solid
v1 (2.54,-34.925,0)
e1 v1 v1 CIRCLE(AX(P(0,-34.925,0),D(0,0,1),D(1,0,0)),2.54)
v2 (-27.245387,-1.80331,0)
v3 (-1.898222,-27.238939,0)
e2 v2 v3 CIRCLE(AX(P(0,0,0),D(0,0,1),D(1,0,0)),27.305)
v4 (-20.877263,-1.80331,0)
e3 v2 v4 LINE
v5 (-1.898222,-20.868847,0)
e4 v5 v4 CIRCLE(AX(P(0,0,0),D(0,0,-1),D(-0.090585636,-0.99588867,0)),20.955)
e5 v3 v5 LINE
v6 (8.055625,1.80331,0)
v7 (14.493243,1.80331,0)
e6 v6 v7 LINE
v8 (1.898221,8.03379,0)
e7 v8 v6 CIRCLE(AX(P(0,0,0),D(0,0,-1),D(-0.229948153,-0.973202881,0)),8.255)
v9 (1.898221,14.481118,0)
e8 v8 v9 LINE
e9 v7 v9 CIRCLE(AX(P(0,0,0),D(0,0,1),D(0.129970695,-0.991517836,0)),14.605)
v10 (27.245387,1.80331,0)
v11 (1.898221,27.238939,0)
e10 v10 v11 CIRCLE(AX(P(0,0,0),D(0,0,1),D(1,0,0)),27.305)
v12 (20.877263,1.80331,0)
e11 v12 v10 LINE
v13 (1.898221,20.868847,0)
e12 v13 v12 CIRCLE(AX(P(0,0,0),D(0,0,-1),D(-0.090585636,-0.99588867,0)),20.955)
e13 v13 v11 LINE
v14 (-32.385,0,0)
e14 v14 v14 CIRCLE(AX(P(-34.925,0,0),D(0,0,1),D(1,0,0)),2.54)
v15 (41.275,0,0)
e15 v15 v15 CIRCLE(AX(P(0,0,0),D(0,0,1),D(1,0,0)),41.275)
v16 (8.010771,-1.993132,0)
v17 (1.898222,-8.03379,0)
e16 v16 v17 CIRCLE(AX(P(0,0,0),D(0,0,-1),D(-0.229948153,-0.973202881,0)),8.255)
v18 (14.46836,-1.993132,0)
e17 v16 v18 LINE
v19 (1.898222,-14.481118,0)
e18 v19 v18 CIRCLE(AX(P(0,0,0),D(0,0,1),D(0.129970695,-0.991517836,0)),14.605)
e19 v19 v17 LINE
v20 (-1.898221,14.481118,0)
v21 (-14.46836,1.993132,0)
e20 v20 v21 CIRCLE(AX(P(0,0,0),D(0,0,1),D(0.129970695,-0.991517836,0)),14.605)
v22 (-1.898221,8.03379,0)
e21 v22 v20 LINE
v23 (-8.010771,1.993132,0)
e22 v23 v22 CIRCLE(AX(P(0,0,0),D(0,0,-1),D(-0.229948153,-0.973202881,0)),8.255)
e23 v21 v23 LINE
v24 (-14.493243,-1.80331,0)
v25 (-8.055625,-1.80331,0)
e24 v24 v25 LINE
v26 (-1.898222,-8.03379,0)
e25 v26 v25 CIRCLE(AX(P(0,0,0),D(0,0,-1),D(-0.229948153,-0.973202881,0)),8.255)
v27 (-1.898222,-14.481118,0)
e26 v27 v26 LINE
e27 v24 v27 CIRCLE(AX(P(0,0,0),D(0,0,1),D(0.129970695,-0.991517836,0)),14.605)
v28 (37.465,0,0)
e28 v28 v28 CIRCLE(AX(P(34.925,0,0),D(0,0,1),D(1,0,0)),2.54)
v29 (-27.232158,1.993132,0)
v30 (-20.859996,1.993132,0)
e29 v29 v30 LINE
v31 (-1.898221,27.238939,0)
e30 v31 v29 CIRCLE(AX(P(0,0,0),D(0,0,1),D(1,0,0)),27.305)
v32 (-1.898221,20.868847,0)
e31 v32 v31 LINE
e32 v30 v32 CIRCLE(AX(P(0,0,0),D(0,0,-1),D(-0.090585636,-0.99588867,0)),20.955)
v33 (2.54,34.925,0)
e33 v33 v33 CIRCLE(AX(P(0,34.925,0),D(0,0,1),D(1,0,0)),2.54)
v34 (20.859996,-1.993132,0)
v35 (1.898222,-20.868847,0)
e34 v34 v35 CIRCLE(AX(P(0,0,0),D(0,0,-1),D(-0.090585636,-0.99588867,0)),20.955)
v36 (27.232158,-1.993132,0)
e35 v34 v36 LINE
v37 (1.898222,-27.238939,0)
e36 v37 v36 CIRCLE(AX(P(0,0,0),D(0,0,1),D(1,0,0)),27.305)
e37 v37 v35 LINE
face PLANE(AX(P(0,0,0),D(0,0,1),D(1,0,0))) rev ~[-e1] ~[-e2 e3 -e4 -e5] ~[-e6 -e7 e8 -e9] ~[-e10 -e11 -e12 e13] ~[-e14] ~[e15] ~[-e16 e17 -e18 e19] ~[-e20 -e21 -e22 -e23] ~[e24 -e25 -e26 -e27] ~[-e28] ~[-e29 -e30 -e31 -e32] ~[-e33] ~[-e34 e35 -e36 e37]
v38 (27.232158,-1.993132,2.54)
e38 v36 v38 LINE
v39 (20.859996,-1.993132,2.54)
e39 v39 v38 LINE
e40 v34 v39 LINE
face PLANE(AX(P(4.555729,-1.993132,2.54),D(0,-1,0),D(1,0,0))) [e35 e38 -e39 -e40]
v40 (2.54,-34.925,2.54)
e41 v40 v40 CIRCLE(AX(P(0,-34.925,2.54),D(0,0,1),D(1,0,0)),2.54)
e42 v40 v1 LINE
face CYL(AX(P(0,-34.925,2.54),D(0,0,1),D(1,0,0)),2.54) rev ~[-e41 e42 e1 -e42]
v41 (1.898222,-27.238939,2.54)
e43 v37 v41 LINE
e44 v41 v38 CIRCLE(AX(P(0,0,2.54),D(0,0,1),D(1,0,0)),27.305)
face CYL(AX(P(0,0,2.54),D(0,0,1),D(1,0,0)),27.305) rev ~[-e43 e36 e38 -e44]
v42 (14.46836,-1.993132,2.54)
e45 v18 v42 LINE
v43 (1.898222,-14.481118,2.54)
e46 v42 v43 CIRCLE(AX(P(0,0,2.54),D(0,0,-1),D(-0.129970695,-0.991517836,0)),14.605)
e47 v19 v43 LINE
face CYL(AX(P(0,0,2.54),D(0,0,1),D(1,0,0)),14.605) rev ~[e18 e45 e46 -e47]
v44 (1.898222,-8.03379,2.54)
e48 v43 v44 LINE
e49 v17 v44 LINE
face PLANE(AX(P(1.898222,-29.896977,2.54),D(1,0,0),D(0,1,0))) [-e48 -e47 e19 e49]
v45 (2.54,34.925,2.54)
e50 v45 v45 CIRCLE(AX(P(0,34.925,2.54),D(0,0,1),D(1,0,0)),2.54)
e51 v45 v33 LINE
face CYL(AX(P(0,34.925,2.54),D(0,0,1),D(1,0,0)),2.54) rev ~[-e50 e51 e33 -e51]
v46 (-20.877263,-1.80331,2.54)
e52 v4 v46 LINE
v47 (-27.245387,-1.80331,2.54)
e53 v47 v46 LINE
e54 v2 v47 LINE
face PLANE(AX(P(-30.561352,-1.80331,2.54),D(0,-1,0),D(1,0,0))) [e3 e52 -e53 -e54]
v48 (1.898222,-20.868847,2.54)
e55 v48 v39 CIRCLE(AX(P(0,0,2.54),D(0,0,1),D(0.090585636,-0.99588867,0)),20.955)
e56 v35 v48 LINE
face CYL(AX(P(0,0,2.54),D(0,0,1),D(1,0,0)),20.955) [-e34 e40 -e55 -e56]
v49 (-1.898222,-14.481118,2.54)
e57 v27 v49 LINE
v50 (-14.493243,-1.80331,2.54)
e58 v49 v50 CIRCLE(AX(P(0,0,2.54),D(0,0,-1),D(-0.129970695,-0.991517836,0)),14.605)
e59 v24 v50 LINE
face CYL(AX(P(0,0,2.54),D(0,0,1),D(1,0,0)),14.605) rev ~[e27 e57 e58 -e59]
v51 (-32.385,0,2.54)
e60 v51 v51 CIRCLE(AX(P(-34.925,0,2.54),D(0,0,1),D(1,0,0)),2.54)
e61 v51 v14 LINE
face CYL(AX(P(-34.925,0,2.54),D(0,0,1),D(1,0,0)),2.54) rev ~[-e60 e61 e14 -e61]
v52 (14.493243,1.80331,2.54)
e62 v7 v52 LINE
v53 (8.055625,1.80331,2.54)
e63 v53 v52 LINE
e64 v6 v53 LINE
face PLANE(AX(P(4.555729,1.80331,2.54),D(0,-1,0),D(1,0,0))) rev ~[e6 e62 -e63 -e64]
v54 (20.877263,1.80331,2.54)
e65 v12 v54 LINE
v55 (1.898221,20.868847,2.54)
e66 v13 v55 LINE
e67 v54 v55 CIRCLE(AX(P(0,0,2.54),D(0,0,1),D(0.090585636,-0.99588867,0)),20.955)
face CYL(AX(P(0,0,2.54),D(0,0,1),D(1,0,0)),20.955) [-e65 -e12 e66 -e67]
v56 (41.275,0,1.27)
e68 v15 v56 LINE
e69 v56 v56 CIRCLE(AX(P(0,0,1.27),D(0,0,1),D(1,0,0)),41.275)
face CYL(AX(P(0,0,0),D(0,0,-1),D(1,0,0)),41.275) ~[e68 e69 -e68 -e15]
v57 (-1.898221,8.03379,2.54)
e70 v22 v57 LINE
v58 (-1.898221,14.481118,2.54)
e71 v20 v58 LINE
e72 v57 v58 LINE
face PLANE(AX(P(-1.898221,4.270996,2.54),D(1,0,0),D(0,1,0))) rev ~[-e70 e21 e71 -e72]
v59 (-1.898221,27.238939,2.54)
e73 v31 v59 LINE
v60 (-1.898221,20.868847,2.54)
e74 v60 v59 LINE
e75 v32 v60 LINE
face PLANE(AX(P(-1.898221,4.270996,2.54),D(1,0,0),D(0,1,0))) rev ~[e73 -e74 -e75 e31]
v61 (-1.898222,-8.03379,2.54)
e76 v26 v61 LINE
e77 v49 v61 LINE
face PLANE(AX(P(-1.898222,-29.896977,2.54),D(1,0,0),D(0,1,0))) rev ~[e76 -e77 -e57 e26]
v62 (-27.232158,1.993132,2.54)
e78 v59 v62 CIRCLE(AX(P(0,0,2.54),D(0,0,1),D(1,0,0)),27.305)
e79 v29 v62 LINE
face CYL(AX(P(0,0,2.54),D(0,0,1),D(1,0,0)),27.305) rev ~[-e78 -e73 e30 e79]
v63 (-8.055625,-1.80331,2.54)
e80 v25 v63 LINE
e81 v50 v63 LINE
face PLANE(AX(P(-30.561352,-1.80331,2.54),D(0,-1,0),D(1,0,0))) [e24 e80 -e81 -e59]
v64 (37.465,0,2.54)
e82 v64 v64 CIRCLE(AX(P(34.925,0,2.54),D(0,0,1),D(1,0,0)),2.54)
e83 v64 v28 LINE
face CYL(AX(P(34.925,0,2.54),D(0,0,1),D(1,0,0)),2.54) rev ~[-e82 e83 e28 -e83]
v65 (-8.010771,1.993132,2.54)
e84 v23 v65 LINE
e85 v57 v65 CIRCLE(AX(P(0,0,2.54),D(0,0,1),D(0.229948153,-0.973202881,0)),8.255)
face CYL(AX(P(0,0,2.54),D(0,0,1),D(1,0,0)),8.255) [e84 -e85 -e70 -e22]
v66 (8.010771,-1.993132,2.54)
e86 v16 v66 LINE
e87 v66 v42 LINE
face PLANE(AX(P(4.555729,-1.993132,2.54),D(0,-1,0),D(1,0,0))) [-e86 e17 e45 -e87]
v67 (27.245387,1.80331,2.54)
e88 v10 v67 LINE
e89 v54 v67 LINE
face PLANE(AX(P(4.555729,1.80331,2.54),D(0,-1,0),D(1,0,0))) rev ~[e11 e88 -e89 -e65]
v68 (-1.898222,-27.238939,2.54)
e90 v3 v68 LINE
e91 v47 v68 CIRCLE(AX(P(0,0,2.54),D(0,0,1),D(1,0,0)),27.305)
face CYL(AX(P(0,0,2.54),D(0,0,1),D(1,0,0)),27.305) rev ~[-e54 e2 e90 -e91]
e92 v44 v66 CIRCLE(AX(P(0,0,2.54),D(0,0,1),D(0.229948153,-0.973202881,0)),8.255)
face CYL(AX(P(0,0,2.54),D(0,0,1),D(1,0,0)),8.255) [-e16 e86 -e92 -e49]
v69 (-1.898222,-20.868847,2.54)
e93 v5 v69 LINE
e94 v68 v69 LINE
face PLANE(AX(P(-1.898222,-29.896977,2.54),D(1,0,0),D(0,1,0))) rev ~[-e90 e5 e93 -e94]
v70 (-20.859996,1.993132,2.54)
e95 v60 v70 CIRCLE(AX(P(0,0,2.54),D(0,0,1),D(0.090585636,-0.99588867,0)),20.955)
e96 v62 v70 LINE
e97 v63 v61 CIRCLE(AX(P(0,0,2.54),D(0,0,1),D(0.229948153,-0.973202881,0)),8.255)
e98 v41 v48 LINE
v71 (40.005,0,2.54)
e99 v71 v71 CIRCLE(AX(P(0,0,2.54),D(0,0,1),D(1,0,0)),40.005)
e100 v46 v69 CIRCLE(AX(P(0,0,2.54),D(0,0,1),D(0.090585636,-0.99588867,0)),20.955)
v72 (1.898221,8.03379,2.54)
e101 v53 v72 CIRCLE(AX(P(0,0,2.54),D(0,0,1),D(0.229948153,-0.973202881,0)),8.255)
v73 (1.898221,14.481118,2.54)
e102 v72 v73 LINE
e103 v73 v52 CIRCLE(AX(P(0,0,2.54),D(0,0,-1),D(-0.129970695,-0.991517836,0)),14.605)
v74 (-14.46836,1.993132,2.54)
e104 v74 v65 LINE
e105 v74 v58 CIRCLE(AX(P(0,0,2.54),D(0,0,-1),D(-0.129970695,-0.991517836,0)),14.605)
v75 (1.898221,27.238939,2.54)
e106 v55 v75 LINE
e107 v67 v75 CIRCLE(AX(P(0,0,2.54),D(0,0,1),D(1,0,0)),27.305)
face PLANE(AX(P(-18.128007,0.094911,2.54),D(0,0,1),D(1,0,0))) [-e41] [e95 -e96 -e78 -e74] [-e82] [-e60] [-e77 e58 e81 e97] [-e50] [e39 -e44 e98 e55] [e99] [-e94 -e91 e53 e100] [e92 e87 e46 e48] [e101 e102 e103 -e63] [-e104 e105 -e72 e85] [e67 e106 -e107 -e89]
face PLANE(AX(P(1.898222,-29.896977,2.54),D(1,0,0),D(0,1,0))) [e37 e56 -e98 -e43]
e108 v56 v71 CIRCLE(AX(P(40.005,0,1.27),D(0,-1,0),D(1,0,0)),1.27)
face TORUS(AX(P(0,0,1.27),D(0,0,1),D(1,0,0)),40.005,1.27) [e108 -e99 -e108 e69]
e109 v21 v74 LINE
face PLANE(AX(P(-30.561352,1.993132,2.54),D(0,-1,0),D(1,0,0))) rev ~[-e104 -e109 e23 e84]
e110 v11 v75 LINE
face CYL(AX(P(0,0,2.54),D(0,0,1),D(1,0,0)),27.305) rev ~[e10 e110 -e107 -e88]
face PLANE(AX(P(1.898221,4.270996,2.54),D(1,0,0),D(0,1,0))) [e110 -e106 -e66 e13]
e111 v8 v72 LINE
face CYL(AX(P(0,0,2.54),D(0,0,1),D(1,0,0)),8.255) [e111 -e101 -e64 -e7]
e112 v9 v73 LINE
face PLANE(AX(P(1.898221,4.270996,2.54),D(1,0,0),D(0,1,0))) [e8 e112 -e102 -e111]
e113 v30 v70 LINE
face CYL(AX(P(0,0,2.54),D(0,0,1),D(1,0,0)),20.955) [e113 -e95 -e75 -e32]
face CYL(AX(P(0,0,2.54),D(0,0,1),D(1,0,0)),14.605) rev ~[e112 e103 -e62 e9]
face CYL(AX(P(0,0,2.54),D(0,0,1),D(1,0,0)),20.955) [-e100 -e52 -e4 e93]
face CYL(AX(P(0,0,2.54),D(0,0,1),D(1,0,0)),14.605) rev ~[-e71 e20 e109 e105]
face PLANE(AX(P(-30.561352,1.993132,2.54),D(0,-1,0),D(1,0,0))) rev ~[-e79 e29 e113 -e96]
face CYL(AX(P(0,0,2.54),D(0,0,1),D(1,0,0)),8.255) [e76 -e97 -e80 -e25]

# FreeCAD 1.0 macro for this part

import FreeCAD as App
import Part
import Sketcher
Q = App.Units.Quantity


def edges_at(feature, points):
    """Names of the edges that pass closest to the given points."""
    edges = feature.Shape.Edges
    near = lambda p: min(range(len(edges)), key=lambda i: edges[i].distToShape(Part.Vertex(*p))[0])
    return sorted({f"Edge{near(p) + 1}" for p in points})

doc = App.newDocument("Part")
body = doc.addObject("PartDesign::Body", "Body")

# Sketch on XY plane
sketch1 = body.newObject("Sketcher::SketchObject", "Sketch")
sketch1.AttachmentSupport = (doc.getObject("XY_Plane"), [""])
sketch1.MapMode = "FlatFace"
sketch1.addGeometry(Part.Circle(App.Vector(0, 0, 0), App.Vector(0, 0, 1), 41), False)
sketch1.addConstraint([
    Sketcher.Constraint("Coincident", 0, 3, -1, 1),
    Sketcher.Constraint("Diameter", 0, Q("3.25 in")),
])
pad1 = body.newObject("PartDesign::Pad", "Pad")
pad1.Profile = sketch1
pad1.Length = Q("0.1 in")

# Sketch on XY plane
sketch2 = body.newObject("Sketcher::SketchObject", "Sketch001")
sketch2.AttachmentSupport = (doc.getObject("XY_Plane"), [""])
sketch2.MapMode = "FlatFace"
sketch2.AttachmentOffset = App.Placement(App.Vector(0, 0, 0.1 * 25.4), App.Rotation())
sketch2.addGeometry(Part.Circle(App.Vector(0, 34.9, 0), App.Vector(0, 0, 1), 2.5), False)
sketch2.addConstraint([
    Sketcher.Constraint("PointOnObject", 0, 3, -2),
    Sketcher.Constraint("Diameter", 0, Q("0.2 in")),
    Sketcher.Constraint("DistanceY", -1, 1, 0, 3, Q("1.375 in")),
])
pocket1 = body.newObject("PartDesign::Pocket", "Pocket")
pocket1.Profile = sketch2
pocket1.Type = "ThroughAll"

# Sketch on XY plane
sketch3 = body.newObject("Sketcher::SketchObject", "Sketch002")
sketch3.AttachmentSupport = (doc.getObject("XY_Plane"), [""])
sketch3.MapMode = "FlatFace"
sketch3.AttachmentOffset = App.Placement(App.Vector(0, 0, 0.1 * 25.4), App.Rotation())
sketch3.addGeometry(Part.Circle(App.Vector(0, -34.9, 0), App.Vector(0, 0, 1), 2.5), False)
sketch3.addConstraint([
    Sketcher.Constraint("PointOnObject", 0, 3, -2),
    Sketcher.Constraint("Diameter", 0, Q("0.2 in")),
    Sketcher.Constraint("DistanceY", 0, 3, -1, 1, Q("1.375 in")),
])
pocket2 = body.newObject("PartDesign::Pocket", "Pocket001")
pocket2.Profile = sketch3
pocket2.Type = "ThroughAll"

# Sketch on XY plane
sketch4 = body.newObject("Sketcher::SketchObject", "Sketch003")
sketch4.AttachmentSupport = (doc.getObject("XY_Plane"), [""])
sketch4.MapMode = "FlatFace"
sketch4.AttachmentOffset = App.Placement(App.Vector(0, 0, 0.1 * 25.4), App.Rotation())
sketch4.addGeometry(Part.Circle(App.Vector(-34.9, 0, 0), App.Vector(0, 0, 1), 2.5), False)
sketch4.addConstraint([
    Sketcher.Constraint("PointOnObject", 0, 3, -1),
    Sketcher.Constraint("Diameter", 0, Q("0.2 in")),
    Sketcher.Constraint("DistanceX", 0, 3, -1, 1, Q("1.375 in")),
])
pocket3 = body.newObject("PartDesign::Pocket", "Pocket002")
pocket3.Profile = sketch4
pocket3.Type = "ThroughAll"

# Sketch on XY plane
sketch5 = body.newObject("Sketcher::SketchObject", "Sketch004")
sketch5.AttachmentSupport = (doc.getObject("XY_Plane"), [""])
sketch5.MapMode = "FlatFace"
sketch5.AttachmentOffset = App.Placement(App.Vector(0, 0, 0.1 * 25.4), App.Rotation())
sketch5.addGeometry(Part.Circle(App.Vector(34.9, 0, 0), App.Vector(0, 0, 1), 2.5), False)
sketch5.addConstraint([
    Sketcher.Constraint("PointOnObject", 0, 3, -1),
    Sketcher.Constraint("Diameter", 0, Q("0.2 in")),
    Sketcher.Constraint("DistanceX", -1, 1, 0, 3, Q("1.375 in")),
])
pocket4 = body.newObject("PartDesign::Pocket", "Pocket003")
pocket4.Profile = sketch5
pocket4.Type = "ThroughAll"
doc.recompute()

fillet = body.newObject("PartDesign::Fillet", "Fillet")
fillet.Base = (pocket4, edges_at(pocket4, [(-41.275, 0, 2.54)]))
fillet.Radius = Q("0.05 in")

# Sketch on XY plane
sketch6 = body.newObject("Sketcher::SketchObject", "Sketch005")
sketch6.AttachmentSupport = (doc.getObject("XY_Plane"), [""])
sketch6.MapMode = "FlatFace"
sketch6.AttachmentOffset = App.Placement(App.Vector(0, 0, 0.1 * 25.4), App.Rotation())
sketch6.addGeometry(Part.Circle(App.Vector(0, 0, 0), App.Vector(0, 0, 1), 27), False)
sketch6.addConstraint([
    Sketcher.Constraint("Coincident", 0, 3, -1, 1),
    Sketcher.Constraint("Diameter", 0, Q("2.15 in")),
])
pocket5 = body.newObject("PartDesign::Pocket", "Pocket004")
pocket5.Profile = sketch6
pocket5.Type = "ThroughAll"
body2 = doc.addObject("PartDesign::Body", "Body001")

# Sketch on XY plane
sketch7 = body2.newObject("Sketcher::SketchObject", "Sketch006")
sketch7.AttachmentSupport = (doc.getObject("XY_Plane001"), [""])
sketch7.MapMode = "FlatFace"
sketch7.AttachmentOffset = App.Placement(App.Vector(0, 0, 0.1 * 25.4), App.Rotation())
sketch7.addGeometry(Part.Circle(App.Vector(0, 0, 0), App.Vector(0, 0, 1), 21), False)
sketch7.addConstraint([
    Sketcher.Constraint("Coincident", 0, 3, -1, 1),
    Sketcher.Constraint("Diameter", 0, Q("1.65 in")),
])
pad2 = body2.newObject("PartDesign::Pad", "Pad001")
pad2.Profile = sketch7
pad2.Length = Q("0.1 in")
pad2.Reversed = True

# Sketch on XY plane
sketch8 = body2.newObject("Sketcher::SketchObject", "Sketch007")
sketch8.AttachmentSupport = (doc.getObject("XY_Plane001"), [""])
sketch8.MapMode = "FlatFace"
sketch8.AttachmentOffset = App.Placement(App.Vector(0, 0, 0.1 * 25.4), App.Rotation())
sketch8.addGeometry(Part.Circle(App.Vector(0, 0, 0), App.Vector(0, 0, 1), 15), False)
sketch8.addConstraint([
    Sketcher.Constraint("Coincident", 0, 3, -1, 1),
    Sketcher.Constraint("Diameter", 0, Q("1.15 in")),
])
pocket6 = body2.newObject("PartDesign::Pocket", "Pocket005")
pocket6.Profile = sketch8
pocket6.Type = "ThroughAll"
body3 = doc.addObject("PartDesign::Body", "Body002")

# Sketch on XY plane
sketch9 = body3.newObject("Sketcher::SketchObject", "Sketch008")
sketch9.AttachmentSupport = (doc.getObject("XY_Plane002"), [""])
sketch9.MapMode = "FlatFace"
sketch9.AttachmentOffset = App.Placement(App.Vector(0, 0, 0.1 * 25.4), App.Rotation())
sketch9.addGeometry(Part.Circle(App.Vector(0, 0, 0), App.Vector(0, 0, 1), 8), False)
sketch9.addConstraint([
    Sketcher.Constraint("Coincident", 0, 3, -1, 1),
    Sketcher.Constraint("Diameter", 0, Q("0.65 in")),
])
pad3 = body3.newObject("PartDesign::Pad", "Pad002")
pad3.Profile = sketch9
pad3.Length = Q("0.1 in")
pad3.Reversed = True
body.AllowCompound = True
doc.recompute()

boolean = body.newObject("PartDesign::Boolean", "Boolean")
boolean.Type = "Fuse"
boolean.addObjects([body2])
doc.recompute()

boolean2 = body.newObject("PartDesign::Boolean", "Boolean001")
boolean2.Type = "Fuse"
boolean2.addObjects([body3])

# Sketch on XY plane
sketch10 = body.newObject("Sketcher::SketchObject", "Sketch009")
sketch10.AttachmentSupport = (doc.getObject("XY_Plane"), [""])
sketch10.MapMode = "FlatFace"
sketch10.AttachmentOffset = App.Placement(App.Vector(0, 0, 0.1 * 25.4), App.Rotation())
sketch10.addGeometry([
    Part.LineSegment(App.Vector(-1.9, -5, 0), App.Vector(-1.9, -29.9, 0)),
    Part.LineSegment(App.Vector(-1.9, -29.9, 0), App.Vector(1.9, -29.9, 0)),
    Part.LineSegment(App.Vector(1.9, -29.9, 0), App.Vector(1.9, -5, 0)),
    Part.LineSegment(App.Vector(1.9, -5, 0), App.Vector(-1.9, -5, 0)),
], False)
sketch10.addConstraint([
    Sketcher.Constraint("Coincident", 0, 2, 1, 1),
    Sketcher.Constraint("Coincident", 1, 2, 2, 1),
    Sketcher.Constraint("Coincident", 2, 2, 3, 1),
    Sketcher.Constraint("Coincident", 3, 2, 0, 1),
    Sketcher.Constraint("Vertical", 0),
    Sketcher.Constraint("Horizontal", 1),
    Sketcher.Constraint("Vertical", 2),
    Sketcher.Constraint("Horizontal", 3),
    Sketcher.Constraint("DistanceY", 0, 2, 0, 1, Q("24.866691 mm")),
    Sketcher.Constraint("DistanceX", 1, 1, 1, 2, Q("3.796444 mm")),
    Sketcher.Constraint("DistanceX", 0, 2, -1, 1, Q("1.898222 mm")),
    Sketcher.Constraint("DistanceY", 0, 2, -1, 1, Q("29.896977 mm")),
])
pad4 = body.newObject("PartDesign::Pad", "Pad003")
pad4.Profile = sketch10
pad4.Length = Q("0.1 in")
pad4.Reversed = True

# Sketch on XY plane
sketch11 = body.newObject("Sketcher::SketchObject", "Sketch010")
sketch11.AttachmentSupport = (doc.getObject("XY_Plane"), [""])
sketch11.MapMode = "FlatFace"
sketch11.AttachmentOffset = App.Placement(App.Vector(0, 0, 0.1 * 25.4), App.Rotation())
sketch11.addGeometry([
    Part.LineSegment(App.Vector(4.6, 1.8, 0), App.Vector(4.6, -2, 0)),
    Part.LineSegment(App.Vector(4.6, -2, 0), App.Vector(29.4, -2, 0)),
    Part.LineSegment(App.Vector(29.4, -2, 0), App.Vector(29.4, 1.8, 0)),
    Part.LineSegment(App.Vector(29.4, 1.8, 0), App.Vector(4.6, 1.8, 0)),
], False)
sketch11.addConstraint([
    Sketcher.Constraint("Coincident", 0, 2, 1, 1),
    Sketcher.Constraint("Coincident", 1, 2, 2, 1),
    Sketcher.Constraint("Coincident", 2, 2, 3, 1),
    Sketcher.Constraint("Coincident", 3, 2, 0, 1),
    Sketcher.Constraint("Vertical", 0),
    Sketcher.Constraint("Horizontal", 1),
    Sketcher.Constraint("Vertical", 2),
    Sketcher.Constraint("Horizontal", 3),
    Sketcher.Constraint("DistanceY", 0, 2, 0, 1, Q("3.796442 mm")),
    Sketcher.Constraint("DistanceX", 1, 1, 1, 2, Q("24.866692 mm")),
    Sketcher.Constraint("DistanceX", -1, 1, 0, 2, Q("4.555729 mm")),
    Sketcher.Constraint("DistanceY", 0, 2, -1, 1, Q("1.993132 mm")),
])
pad5 = body.newObject("PartDesign::Pad", "Pad004")
pad5.Profile = sketch11
pad5.Length = Q("0.1 in")
pad5.Reversed = True

# Sketch on XY plane
sketch12 = body.newObject("Sketcher::SketchObject", "Sketch011")
sketch12.AttachmentSupport = (doc.getObject("XY_Plane"), [""])
sketch12.MapMode = "FlatFace"
sketch12.AttachmentOffset = App.Placement(App.Vector(0, 0, 0.1 * 25.4), App.Rotation())
sketch12.addGeometry([
    Part.LineSegment(App.Vector(-1.9, 30.1, 0), App.Vector(-1.9, 4.3, 0)),
    Part.LineSegment(App.Vector(-1.9, 4.3, 0), App.Vector(1.9, 4.3, 0)),
    Part.LineSegment(App.Vector(1.9, 4.3, 0), App.Vector(1.9, 30.1, 0)),
    Part.LineSegment(App.Vector(1.9, 30.1, 0), App.Vector(-1.9, 30.1, 0)),
], False)
sketch12.addConstraint([
    Sketcher.Constraint("Coincident", 0, 2, 1, 1),
    Sketcher.Constraint("Coincident", 1, 2, 2, 1),
    Sketcher.Constraint("Coincident", 2, 2, 3, 1),
    Sketcher.Constraint("Coincident", 3, 2, 0, 1),
    Sketcher.Constraint("Vertical", 0),
    Sketcher.Constraint("Horizontal", 1),
    Sketcher.Constraint("Vertical", 2),
    Sketcher.Constraint("Horizontal", 3),
    Sketcher.Constraint("DistanceY", 0, 2, 0, 1, Q("25.815801 mm")),
    Sketcher.Constraint("DistanceX", 1, 1, 1, 2, Q("3.796442 mm")),
    Sketcher.Constraint("DistanceX", 0, 2, -1, 1, Q("1.898221 mm")),
    Sketcher.Constraint("DistanceY", -1, 1, 0, 2, Q("4.270996 mm")),
])
pad6 = body.newObject("PartDesign::Pad", "Pad005")
pad6.Profile = sketch12
pad6.Length = Q("0.1 in")
pad6.Reversed = True

# Sketch on XY plane
sketch13 = body.newObject("Sketcher::SketchObject", "Sketch012")
sketch13.AttachmentSupport = (doc.getObject("XY_Plane"), [""])
sketch13.MapMode = "FlatFace"
sketch13.AttachmentOffset = App.Placement(App.Vector(0, 0, 0.1 * 25.4), App.Rotation())
sketch13.addGeometry([
    Part.LineSegment(App.Vector(-30.6, 2, 0), App.Vector(-30.6, -1.8, 0)),
    Part.LineSegment(App.Vector(-30.6, -1.8, 0), App.Vector(-5.7, -1.8, 0)),
    Part.LineSegment(App.Vector(-5.7, -1.8, 0), App.Vector(-5.7, 2, 0)),
    Part.LineSegment(App.Vector(-5.7, 2, 0), App.Vector(-30.6, 2, 0)),
], False)
sketch13.addConstraint([
    Sketcher.Constraint("Coincident", 0, 2, 1, 1),
    Sketcher.Constraint("Coincident", 1, 2, 2, 1),
    Sketcher.Constraint("Coincident", 2, 2, 3, 1),
    Sketcher.Constraint("Coincident", 3, 2, 0, 1),
    Sketcher.Constraint("Vertical", 0),
    Sketcher.Constraint("Horizontal", 1),
    Sketcher.Constraint("Vertical", 2),
    Sketcher.Constraint("Horizontal", 3),
    Sketcher.Constraint("DistanceX", 1, 1, 1, 2, Q("24.86669 mm")),
    Sketcher.Constraint("DistanceY", 0, 2, 0, 1, Q("3.796442 mm")),
    Sketcher.Constraint("DistanceX", 0, 2, -1, 1, Q("30.561352 mm")),
    Sketcher.Constraint("DistanceY", 0, 2, -1, 1, Q("1.80331 mm")),
])
pad7 = body.newObject("PartDesign::Pad", "Pad006")
pad7.Profile = sketch13
pad7.Length = Q("0.1 in")
pad7.Reversed = True

doc.recompute()
